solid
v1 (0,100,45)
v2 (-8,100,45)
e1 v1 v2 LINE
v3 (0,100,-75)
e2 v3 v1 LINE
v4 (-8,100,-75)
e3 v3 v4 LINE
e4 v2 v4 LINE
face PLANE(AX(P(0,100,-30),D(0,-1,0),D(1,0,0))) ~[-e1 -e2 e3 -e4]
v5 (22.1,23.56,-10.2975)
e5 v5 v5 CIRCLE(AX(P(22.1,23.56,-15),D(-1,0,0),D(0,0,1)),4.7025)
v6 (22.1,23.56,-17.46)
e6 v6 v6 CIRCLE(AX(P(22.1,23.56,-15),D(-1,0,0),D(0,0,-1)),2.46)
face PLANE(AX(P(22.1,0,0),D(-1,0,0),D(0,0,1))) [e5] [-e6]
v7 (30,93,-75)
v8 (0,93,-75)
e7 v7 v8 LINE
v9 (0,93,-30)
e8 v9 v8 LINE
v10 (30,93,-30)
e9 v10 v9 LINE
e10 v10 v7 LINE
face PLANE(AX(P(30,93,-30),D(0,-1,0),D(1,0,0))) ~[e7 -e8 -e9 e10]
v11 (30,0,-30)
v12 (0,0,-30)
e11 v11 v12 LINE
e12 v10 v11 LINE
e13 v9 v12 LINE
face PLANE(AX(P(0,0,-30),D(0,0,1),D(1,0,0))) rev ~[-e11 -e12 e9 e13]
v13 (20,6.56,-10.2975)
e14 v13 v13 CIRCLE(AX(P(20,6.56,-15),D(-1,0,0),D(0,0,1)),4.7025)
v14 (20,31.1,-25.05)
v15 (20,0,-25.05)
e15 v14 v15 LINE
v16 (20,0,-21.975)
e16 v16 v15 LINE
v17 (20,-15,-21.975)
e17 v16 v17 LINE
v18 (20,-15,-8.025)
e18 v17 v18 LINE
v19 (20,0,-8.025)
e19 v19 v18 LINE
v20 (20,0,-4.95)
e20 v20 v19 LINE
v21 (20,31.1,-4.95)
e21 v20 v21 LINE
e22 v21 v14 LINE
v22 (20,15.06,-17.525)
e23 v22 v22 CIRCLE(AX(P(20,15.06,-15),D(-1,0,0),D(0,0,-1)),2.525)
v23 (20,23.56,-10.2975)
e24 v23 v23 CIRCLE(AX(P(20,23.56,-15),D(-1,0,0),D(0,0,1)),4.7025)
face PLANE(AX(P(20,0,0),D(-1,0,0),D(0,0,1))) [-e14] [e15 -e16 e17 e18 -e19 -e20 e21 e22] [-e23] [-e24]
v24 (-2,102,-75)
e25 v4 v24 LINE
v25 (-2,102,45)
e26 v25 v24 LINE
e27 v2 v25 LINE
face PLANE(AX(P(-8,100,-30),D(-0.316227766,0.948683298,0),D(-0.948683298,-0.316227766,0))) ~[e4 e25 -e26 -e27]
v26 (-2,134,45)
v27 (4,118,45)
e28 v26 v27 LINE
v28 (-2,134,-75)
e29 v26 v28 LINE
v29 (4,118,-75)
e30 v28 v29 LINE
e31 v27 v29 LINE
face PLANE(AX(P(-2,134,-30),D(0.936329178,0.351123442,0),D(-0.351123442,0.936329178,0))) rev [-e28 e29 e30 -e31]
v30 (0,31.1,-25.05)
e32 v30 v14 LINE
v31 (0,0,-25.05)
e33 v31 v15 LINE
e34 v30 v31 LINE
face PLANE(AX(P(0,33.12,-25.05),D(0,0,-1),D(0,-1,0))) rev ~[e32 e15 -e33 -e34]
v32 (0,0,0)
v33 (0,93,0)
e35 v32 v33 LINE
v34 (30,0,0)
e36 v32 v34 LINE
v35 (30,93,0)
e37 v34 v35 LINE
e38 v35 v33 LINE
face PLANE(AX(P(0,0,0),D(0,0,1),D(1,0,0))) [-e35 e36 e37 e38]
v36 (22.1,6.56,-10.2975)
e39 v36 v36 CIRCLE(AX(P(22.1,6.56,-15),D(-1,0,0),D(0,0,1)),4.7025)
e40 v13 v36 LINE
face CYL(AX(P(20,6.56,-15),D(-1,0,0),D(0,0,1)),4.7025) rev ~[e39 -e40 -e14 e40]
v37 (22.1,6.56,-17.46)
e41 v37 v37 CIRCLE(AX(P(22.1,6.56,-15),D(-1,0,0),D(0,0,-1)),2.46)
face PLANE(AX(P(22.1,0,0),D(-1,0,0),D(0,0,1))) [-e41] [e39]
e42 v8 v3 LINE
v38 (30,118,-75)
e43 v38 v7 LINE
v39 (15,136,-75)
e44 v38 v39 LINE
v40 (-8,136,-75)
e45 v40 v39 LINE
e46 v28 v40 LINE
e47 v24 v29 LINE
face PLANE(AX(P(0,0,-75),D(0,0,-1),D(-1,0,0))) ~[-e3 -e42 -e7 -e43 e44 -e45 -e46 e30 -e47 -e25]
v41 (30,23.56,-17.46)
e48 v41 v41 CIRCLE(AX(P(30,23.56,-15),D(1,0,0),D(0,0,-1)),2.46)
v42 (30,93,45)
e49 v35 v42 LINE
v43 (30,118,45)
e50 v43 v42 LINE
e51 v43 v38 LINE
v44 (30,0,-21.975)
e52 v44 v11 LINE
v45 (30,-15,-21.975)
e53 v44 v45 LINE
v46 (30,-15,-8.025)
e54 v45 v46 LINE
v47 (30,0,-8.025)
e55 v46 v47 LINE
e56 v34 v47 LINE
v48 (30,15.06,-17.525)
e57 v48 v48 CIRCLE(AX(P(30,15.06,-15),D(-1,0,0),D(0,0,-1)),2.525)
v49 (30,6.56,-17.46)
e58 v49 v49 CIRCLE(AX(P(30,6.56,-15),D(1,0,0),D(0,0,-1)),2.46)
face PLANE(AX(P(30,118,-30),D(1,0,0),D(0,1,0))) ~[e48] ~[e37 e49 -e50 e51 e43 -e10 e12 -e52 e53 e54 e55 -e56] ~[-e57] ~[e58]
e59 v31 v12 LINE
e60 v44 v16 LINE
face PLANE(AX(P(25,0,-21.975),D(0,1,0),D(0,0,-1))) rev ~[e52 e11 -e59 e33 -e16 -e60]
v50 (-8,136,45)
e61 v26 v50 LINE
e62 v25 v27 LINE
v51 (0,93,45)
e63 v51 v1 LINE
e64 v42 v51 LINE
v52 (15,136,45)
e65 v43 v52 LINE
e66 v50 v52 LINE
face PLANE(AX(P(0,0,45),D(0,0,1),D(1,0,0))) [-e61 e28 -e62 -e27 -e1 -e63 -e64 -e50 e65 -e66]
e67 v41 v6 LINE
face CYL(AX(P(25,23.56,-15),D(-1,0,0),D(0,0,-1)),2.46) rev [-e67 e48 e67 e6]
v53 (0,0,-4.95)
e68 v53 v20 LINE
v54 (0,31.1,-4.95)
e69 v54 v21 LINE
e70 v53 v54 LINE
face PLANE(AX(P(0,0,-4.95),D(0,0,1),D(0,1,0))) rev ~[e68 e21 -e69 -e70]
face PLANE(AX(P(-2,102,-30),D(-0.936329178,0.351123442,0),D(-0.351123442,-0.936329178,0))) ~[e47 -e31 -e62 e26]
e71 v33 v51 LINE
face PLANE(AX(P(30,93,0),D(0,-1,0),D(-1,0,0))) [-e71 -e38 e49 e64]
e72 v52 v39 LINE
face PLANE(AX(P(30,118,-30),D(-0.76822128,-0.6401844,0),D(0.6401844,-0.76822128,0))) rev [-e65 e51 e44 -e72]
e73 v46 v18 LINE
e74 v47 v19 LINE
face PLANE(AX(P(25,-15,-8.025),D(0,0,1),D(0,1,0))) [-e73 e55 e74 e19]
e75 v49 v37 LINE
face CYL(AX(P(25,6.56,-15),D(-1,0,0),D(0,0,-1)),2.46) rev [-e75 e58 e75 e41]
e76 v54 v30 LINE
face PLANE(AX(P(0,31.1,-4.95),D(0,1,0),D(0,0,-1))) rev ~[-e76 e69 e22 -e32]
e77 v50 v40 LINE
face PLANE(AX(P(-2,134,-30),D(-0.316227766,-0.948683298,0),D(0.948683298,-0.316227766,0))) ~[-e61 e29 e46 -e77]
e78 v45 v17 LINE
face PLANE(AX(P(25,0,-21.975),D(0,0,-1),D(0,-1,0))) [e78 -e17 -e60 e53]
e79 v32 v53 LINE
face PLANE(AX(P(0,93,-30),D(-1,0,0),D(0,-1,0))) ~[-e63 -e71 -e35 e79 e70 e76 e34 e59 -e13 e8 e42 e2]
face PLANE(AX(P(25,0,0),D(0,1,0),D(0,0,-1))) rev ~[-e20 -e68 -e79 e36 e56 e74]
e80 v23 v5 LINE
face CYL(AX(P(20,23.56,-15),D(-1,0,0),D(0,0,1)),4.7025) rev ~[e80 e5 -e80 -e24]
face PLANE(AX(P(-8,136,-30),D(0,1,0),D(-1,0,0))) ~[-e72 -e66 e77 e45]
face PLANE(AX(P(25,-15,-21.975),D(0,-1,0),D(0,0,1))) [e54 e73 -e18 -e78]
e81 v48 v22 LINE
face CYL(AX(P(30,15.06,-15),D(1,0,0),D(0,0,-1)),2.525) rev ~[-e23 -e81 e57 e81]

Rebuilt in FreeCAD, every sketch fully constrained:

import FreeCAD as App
import Part
import Sketcher

V = App.Vector
Q = App.Units.Quantity


def add_polygon(sketch, points):
    """Adds a closed chain of lines whose ends are joined by coincident constraints."""
    first, n = sketch.GeometryCount, len(points)
    for a, b in zip(points, points[1:] + points[:1]):
        sketch.addGeometry(Part.LineSegment(App.Vector(*a, 0), App.Vector(*b, 0)), False)
    for i in range(n):
        sketch.addConstraint(Sketcher.Constraint("Coincident", first + i, 2, first + (i + 1) % n, 1))

doc = App.newDocument("Part")
body = doc.addObject("PartDesign::Body", "Body")

sketch1 = doc.addObject("Sketcher::SketchObject", "Sketch")
body.addObject(sketch1)
sketch1.AttachmentSupport = (doc.XY_Plane, [""])
sketch1.MapMode = "FlatFace"
add_polygon(sketch1, [(0, 40), (0, 0), (25, 0), (25, 40)])
sketch1.addConstraint([
    Sketcher.Constraint("Vertical", 0),
    Sketcher.Constraint("Horizontal", 1),
    Sketcher.Constraint("Vertical", 2),
    Sketcher.Constraint("Horizontal", 3),
    Sketcher.Constraint("Coincident", 0, 2, -1, 1),
    Sketcher.Constraint("DistanceX", 1, 1, 1, 2, Q("25 mm")),
    Sketcher.Constraint("DistanceY", 0, 2, 0, 1, Q("40 mm")),
])
pad1 = doc.addObject("PartDesign::Pad", "Pad")
body.addObject(pad1)
pad1.Profile = sketch1
pad1.Length = 30
pad1.Reversed = True

sketch2 = doc.addObject("Sketcher::SketchObject", "Sketch001")
body.addObject(sketch2)
sketch2.AttachmentSupport = (doc.YZ_Plane, [""])
sketch2.MapMode = "FlatFace"
sketch2.AttachmentOffset = App.Placement(V(0, 0, 25), App.Rotation())
sketch2.addGeometry(Part.Circle(V(6.6, -15, 0), V(0, 0, 1), 2.5), False)
sketch2.addConstraint([
    Sketcher.Constraint("Diameter", 0, Q("4.92 mm")),
    Sketcher.Constraint("DistanceY", 0, 3, -1, 1, Q("15 mm")),
    Sketcher.Constraint("DistanceX", -1, 1, 0, 3, Q("6.56 mm")),
])
pocket1 = doc.addObject("PartDesign::Pocket", "Pocket")
body.addObject(pocket1)
pocket1.Profile = sketch2
pocket1.Length = 30

sketch3 = doc.addObject("Sketcher::SketchObject", "Sketch002")
body.addObject(sketch3)
sketch3.AttachmentSupport = (doc.YZ_Plane, [""])
sketch3.MapMode = "FlatFace"
add_polygon(sketch3, [(0, -25), (0, -5), (33, -5), (33, -25)])
sketch3.addConstraint([
    Sketcher.Constraint("Vertical", 0),
    Sketcher.Constraint("Horizontal", 1),
    Sketcher.Constraint("Vertical", 2),
    Sketcher.Constraint("Horizontal", 3),
    Sketcher.Constraint("PointOnObject", 0, 2, -2),
    Sketcher.Constraint("DistanceY", 0, 1, 0, 2, Q("20.1 mm")),
    Sketcher.Constraint("DistanceX", 1, 1, 1, 2, Q("33.12 mm")),
    Sketcher.Constraint("DistanceY", 0, 2, -1, 1, Q("4.95 mm")),
])
pocket2 = doc.addObject("PartDesign::Pocket", "Pocket001")
body.addObject(pocket2)
pocket2.Profile = sketch3
pocket2.Length = 20
pocket2.Reversed = True

sketch4 = doc.addObject("Sketcher::SketchObject", "Sketch003")
body.addObject(sketch4)
sketch4.AttachmentSupport = (doc.XZ_Plane, [""])
sketch4.MapMode = "FlatFace"
add_polygon(sketch4, [(25, -8), (20, -8), (20, -22), (25, -22)])
sketch4.addConstraint([
    Sketcher.Constraint("Horizontal", 0),
    Sketcher.Constraint("Vertical", 1),
    Sketcher.Constraint("Horizontal", 2),
    Sketcher.Constraint("Vertical", 3),
    Sketcher.Constraint("DistanceY", 1, 2, 1, 1, Q("13.95 mm")),
    Sketcher.Constraint("DistanceX", 0, 2, 0, 1, Q("5 mm")),
    Sketcher.Constraint("DistanceX", -1, 1, 0, 2, Q("20 mm")),
    Sketcher.Constraint("DistanceY", 0, 2, -1, 1, Q("8.025 mm")),
])
pad2 = doc.addObject("PartDesign::Pad", "Pad001")
body.addObject(pad2)
pad2.Profile = sketch4
pad2.Length = 15

sketch5 = doc.addObject("Sketcher::SketchObject", "Sketch004")
body.addObject(sketch5)
sketch5.AttachmentSupport = (doc.YZ_Plane, [""])
sketch5.MapMode = "FlatFace"
sketch5.AttachmentOffset = App.Placement(V(0, 0, 20), App.Rotation())
sketch5.addGeometry([
    Part.Circle(V(6.6, -15, 0), V(0, 0, 1), 4.7),
    Part.Circle(V(6.6, -15, 0), V(0, 0, 1), 2.5),
], False)
sketch5.addConstraint([
    Sketcher.Constraint("Coincident", 1, 3, 0, 3),
    Sketcher.Constraint("Diameter", 0, Q("9.405 mm")),
    Sketcher.Constraint("Diameter", 1, Q("4.92 mm")),
    Sketcher.Constraint("DistanceY", 0, 3, -1, 1, Q("15 mm")),
    Sketcher.Constraint("DistanceX", -1, 1, 0, 3, Q("6.56 mm")),
])
pocket3 = doc.addObject("PartDesign::Pocket", "Pocket002")
body.addObject(pocket3)
pocket3.Profile = sketch5
pocket3.Length = 2.1
pocket3.Reversed = True

sketch6 = doc.addObject("Sketcher::SketchObject", "Sketch005")
body.addObject(sketch6)
sketch6.AttachmentSupport = (doc.YZ_Plane, [""])
sketch6.MapMode = "FlatFace"
sketch6.AttachmentOffset = App.Placement(V(0, 0, 25), App.Rotation())
sketch6.addGeometry(Part.Circle(V(23.6, -15, 0), V(0, 0, 1), 2.5), False)
sketch6.addConstraint([
    Sketcher.Constraint("Diameter", 0, Q("4.92 mm")),
    Sketcher.Constraint("DistanceY", 0, 3, -1, 1, Q("15 mm")),
    Sketcher.Constraint("DistanceX", -1, 1, 0, 3, Q("23.56 mm")),
])
pocket4 = doc.addObject("PartDesign::Pocket", "Pocket003")
body.addObject(pocket4)
pocket4.Profile = sketch6
pocket4.Length = 10

sketch7 = doc.addObject("Sketcher::SketchObject", "Sketch006")
body.addObject(sketch7)
sketch7.AttachmentSupport = (doc.YZ_Plane, [""])
sketch7.MapMode = "FlatFace"
sketch7.AttachmentOffset = App.Placement(V(0, 0, 20), App.Rotation())
sketch7.addGeometry([
    Part.Circle(V(23.6, -15, 0), V(0, 0, 1), 4.7),
    Part.Circle(V(23.6, -15, 0), V(0, 0, 1), 2.5),
], False)
sketch7.addConstraint([
    Sketcher.Constraint("Coincident", 1, 3, 0, 3),
    Sketcher.Constraint("Diameter", 0, Q("9.405 mm")),
    Sketcher.Constraint("Diameter", 1, Q("4.92 mm")),
    Sketcher.Constraint("DistanceY", 0, 3, -1, 1, Q("15 mm")),
    Sketcher.Constraint("DistanceX", -1, 1, 0, 3, Q("23.56 mm")),
])
pocket5 = doc.addObject("PartDesign::Pocket", "Pocket004")
body.addObject(pocket5)
pocket5.Profile = sketch7
pocket5.Length = 2.1
pocket5.Reversed = True

sketch8 = doc.addObject("Sketcher::SketchObject", "Sketch007")
body.addObject(sketch8)
sketch8.AttachmentSupport = (doc.YZ_Plane, [""])
sketch8.MapMode = "FlatFace"
sketch8.AttachmentOffset = App.Placement(V(0, 0, 25), App.Rotation())
add_polygon(sketch8, [(0, -30), (40, -30), (40, 0), (0, 0), (0, -8), (-15, -8), (-15, -22), (0, -22)])
sketch8.addGeometry(Part.Circle(V(6.6, -15, 0), V(0, 0, 1), 2.5), False)
sketch8.addGeometry(Part.Circle(V(23.6, -15, 0), V(0, 0, 1), 2.5), False)
sketch8.addConstraint([
    Sketcher.Constraint("Horizontal", 0),
    Sketcher.Constraint("Vertical", 1),
    Sketcher.Constraint("Horizontal", 2),
    Sketcher.Constraint("Vertical", 3),
    Sketcher.Constraint("Horizontal", 4),
    Sketcher.Constraint("Vertical", 5),
    Sketcher.Constraint("Horizontal", 6),
    Sketcher.Constraint("Vertical", 7),
    Sketcher.Constraint("Coincident", 2, 2, -1, 1),
    Sketcher.Constraint("Equal", 8, 9),
    Sketcher.Constraint("PointOnObject", 6, 2, -2),
    Sketcher.Constraint("Horizontal", 8, 3, 9, 3),
    Sketcher.Constraint("Equal", 3, 7),
    Sketcher.Constraint("Diameter", 8, Q("4.92 mm")),
    Sketcher.Constraint("DistanceX", 0, 1, 0, 2, Q("40 mm")),
    Sketcher.Constraint("DistanceX", 4, 2, 4, 1, Q("15 mm")),
    Sketcher.Constraint("DistanceY", 1, 1, 1, 2, Q("30 mm")),
    Sketcher.Constraint("DistanceY", 8, 3, -1, 1, Q("15 mm")),
    Sketcher.Constraint("DistanceX", 8, 3, 9, 3, Q("17 mm")),
    Sketcher.Constraint("DistanceY", 5, 2, 5, 1, Q("13.95 mm")),
    Sketcher.Constraint("DistanceX", -1, 1, 8, 3, Q("6.56 mm")),
])
pad3 = doc.addObject("PartDesign::Pad", "Pad002")
body.addObject(pad3)
pad3.Profile = sketch8
pad3.Length = 5

sketch9 = doc.addObject("Sketcher::SketchObject", "Sketch008")
body.addObject(sketch9)
sketch9.AttachmentSupport = (doc.XZ_Plane, [""])
sketch9.MapMode = "FlatFace"
sketch9.AttachmentOffset = App.Placement(V(0, 0, -40), App.Rotation())
add_polygon(sketch9, [(30, -30), (0, -30), (0, 0), (30, 0)])
sketch9.addConstraint([
    Sketcher.Constraint("Horizontal", 0),
    Sketcher.Constraint("Vertical", 1),
    Sketcher.Constraint("Horizontal", 2),
    Sketcher.Constraint("Vertical", 3),
    Sketcher.Constraint("Coincident", 1, 2, -1, 1),
    Sketcher.Constraint("Equal", 2, 1),
    Sketcher.Constraint("DistanceX", 0, 2, 0, 1, Q("30 mm")),
])
pad4 = doc.addObject("PartDesign::Pad", "Pad003")
body.addObject(pad4)
pad4.Profile = sketch9
pad4.Length = 30
pad4.Reversed = True

sketch10 = doc.addObject("Sketcher::SketchObject", "Sketch009")
body.addObject(sketch10)
sketch10.AttachmentSupport = (doc.YZ_Plane, [""])
sketch10.MapMode = "FlatFace"
sketch10.AttachmentOffset = App.Placement(V(0, 0, 30), App.Rotation())
sketch10.addGeometry(Part.Circle(V(15.1, -15, 0), V(0, 0, 1), 2.5), False)
sketch10.addConstraint([
    Sketcher.Constraint("Diameter", 0, Q("5.05 mm")),
    Sketcher.Constraint("DistanceY", 0, 3, -1, 1, Q("15 mm")),
    Sketcher.Constraint("DistanceX", -1, 1, 0, 3, Q("15.06 mm")),
])
pocket6 = doc.addObject("PartDesign::Pocket", "Pocket005")
body.addObject(pocket6)
pocket6.Profile = sketch10
pocket6.Length = 30

sketch11 = doc.addObject("Sketcher::SketchObject", "Sketch010")
body.addObject(sketch11)
sketch11.AttachmentSupport = (doc.XY_Plane, [""])
sketch11.MapMode = "FlatFace"
add_polygon(sketch11, [(0, 70), (30, 70), (30, 118), (15, 136), (-8, 136), (-2, 134), (4, 118), (-2, 102), (-8, 100), (0, 100)])
sketch11.addConstraint([
    Sketcher.Constraint("Horizontal", 0),
    Sketcher.Constraint("Vertical", 1),
    Sketcher.Constraint("Horizontal", 3),
    Sketcher.Constraint("Horizontal", 8),
    Sketcher.Constraint("Vertical", 9),
    Sketcher.Constraint("PointOnObject", 8, 2, -2),
    Sketcher.Constraint("Horizontal", 1, 2, 5, 2),
    Sketcher.Constraint("Vertical", 4, 2, 6, 2),
    Sketcher.Constraint("Vertical", 3, 2, 7, 2),
    Sketcher.Constraint("Equal", 0, 9),
    Sketcher.Constraint("Equal", 5, 6),
    Sketcher.Constraint("Equal", 4, 7),
    Sketcher.Constraint("DistanceX", 0, 1, 0, 2, Q("30 mm")),
    Sketcher.Constraint("DistanceX", 3, 2, 3, 1, Q("23 mm")),
    Sketcher.Constraint("DistanceX", 8, 1, 8, 2, Q("8 mm")),
    Sketcher.Constraint("DistanceY", 1, 1, 1, 2, Q("48 mm")),
    Sketcher.Constraint("DistanceY", -1, 1, 0, 2, Q("70 mm")),
    Sketcher.Constraint("DistanceX", 4, 2, -1, 1, Q("2 mm")),
    Sketcher.Constraint("DistanceY", -1, 1, 4, 2, Q("134 mm")),
    Sketcher.Constraint("DistanceX", -1, 1, 5, 2, Q("4 mm")),
])
pad5 = doc.addObject("PartDesign::Pad", "Pad004")
body.addObject(pad5)
pad5.Profile = sketch11
pad5.Length = 30
pad5.Reversed = True

sketch12 = doc.addObject("Sketcher::SketchObject", "Sketch011")
body.addObject(sketch12)
sketch12.AttachmentSupport = (doc.YZ_Plane, [""])
sketch12.MapMode = "FlatFace"
add_polygon(sketch12, [(33.1, -5), (33.1, -25.1), (31.1, -25.1), (31.1, -5)])
sketch12.addConstraint([
    Sketcher.Constraint("Vertical", 0),
    Sketcher.Constraint("Horizontal", 1),
    Sketcher.Constraint("Vertical", 2),
    Sketcher.Constraint("Horizontal", 3),
    Sketcher.Constraint("DistanceX", 1, 2, 1, 1, Q("2.02 mm")),
    Sketcher.Constraint("DistanceY", 0, 2, 0, 1, Q("20.1 mm")),
    Sketcher.Constraint("DistanceX", -1, 1, 1, 2, Q("31.1 mm")),
    Sketcher.Constraint("DistanceY", 0, 2, -1, 1, Q("25.05 mm")),
])
pad6 = doc.addObject("PartDesign::Pad", "Pad005")
body.addObject(pad6)
pad6.Profile = sketch12
pad6.Length = 20

sketch13 = doc.addObject("Sketcher::SketchObject", "Sketch012")
body.addObject(sketch13)
sketch13.AttachmentSupport = (doc.XY_Plane, [""])
sketch13.MapMode = "FlatFace"
add_polygon(sketch13, [(-8, 100), (0, 100), (0, 93), (30, 93), (30, 118), (15, 136), (-8, 136), (-2, 134), (4, 118), (-2, 102)])
sketch13.addConstraint([
    Sketcher.Constraint("Horizontal", 0),
    Sketcher.Constraint("Vertical", 1),
    Sketcher.Constraint("Horizontal", 2),
    Sketcher.Constraint("Vertical", 3),
    Sketcher.Constraint("Horizontal", 5),
    Sketcher.Constraint("PointOnObject", 0, 2, -2),
    Sketcher.Constraint("Horizontal", 3, 2, 7, 2),
    Sketcher.Constraint("Vertical", 6, 2, 8, 2),
    Sketcher.Constraint("Vertical", 5, 2, 9, 2),
    Sketcher.Constraint("Equal", 7, 8),
    Sketcher.Constraint("Equal", 6, 9),
    Sketcher.Constraint("DistanceY", 3, 1, 3, 2, Q("25 mm")),
    Sketcher.Constraint("DistanceX", 0, 1, 0, 2, Q("8 mm")),
    Sketcher.Constraint("DistanceX", 2, 1, 2, 2, Q("30 mm")),
    Sketcher.Constraint("DistanceX", 5, 2, 5, 1, Q("23 mm")),
    Sketcher.Constraint("DistanceY", 1, 2, 1, 1, Q("7 mm")),
    Sketcher.Constraint("DistanceY", -1, 1, 0, 2, Q("100 mm")),
    Sketcher.Constraint("DistanceX", 6, 2, -1, 1, Q("2 mm")),
    Sketcher.Constraint("DistanceY", -1, 1, 6, 2, Q("134 mm")),
    Sketcher.Constraint("DistanceX", -1, 1, 7, 2, Q("4 mm")),
])
pad7 = doc.addObject("PartDesign::Pad", "Pad006")
body.addObject(pad7)
pad7.Profile = sketch13
pad7.Length = 45
doc.recompute()

datumplane = doc.addObject("PartDesign::Plane", "DatumPlane")
body.addObject(datumplane)
datumplane.AttachmentSupport = (doc.XY_Plane, [""])
datumplane.MapMode = "FlatFace"
datumplane.AttachmentOffset = App.Placement(V(0, 0, -15), App.Rotation())
mirrored = doc.addObject("PartDesign::Mirrored", "Mirrored")
body.addObject(mirrored)
mirrored.Originals = [pad7]
mirrored.MirrorPlane = (datumplane, [""])
body.Tip = mirrored

doc.recompute()
